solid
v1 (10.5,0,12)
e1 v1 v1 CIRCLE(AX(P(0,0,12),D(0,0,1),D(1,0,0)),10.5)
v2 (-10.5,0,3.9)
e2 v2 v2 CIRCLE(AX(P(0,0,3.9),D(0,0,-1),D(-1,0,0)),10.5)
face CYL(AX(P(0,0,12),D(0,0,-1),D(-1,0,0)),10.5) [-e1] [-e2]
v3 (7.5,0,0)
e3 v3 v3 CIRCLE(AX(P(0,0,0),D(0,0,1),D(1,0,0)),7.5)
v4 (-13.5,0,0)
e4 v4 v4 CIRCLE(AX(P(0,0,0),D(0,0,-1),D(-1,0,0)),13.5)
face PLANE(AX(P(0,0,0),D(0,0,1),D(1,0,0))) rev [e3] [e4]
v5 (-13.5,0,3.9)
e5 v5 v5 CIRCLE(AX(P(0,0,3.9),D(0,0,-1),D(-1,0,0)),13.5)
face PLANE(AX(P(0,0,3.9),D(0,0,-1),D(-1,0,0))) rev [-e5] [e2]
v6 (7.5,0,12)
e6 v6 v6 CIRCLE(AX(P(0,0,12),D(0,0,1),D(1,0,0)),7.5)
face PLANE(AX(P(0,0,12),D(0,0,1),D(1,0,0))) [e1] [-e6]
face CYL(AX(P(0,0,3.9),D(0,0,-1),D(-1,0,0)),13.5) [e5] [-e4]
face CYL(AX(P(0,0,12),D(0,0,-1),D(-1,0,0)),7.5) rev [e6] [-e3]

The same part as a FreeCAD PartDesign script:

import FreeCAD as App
import Part
import Sketcher
from FreeCAD import Vector

doc = App.newDocument("Part")
body = doc.addObject("PartDesign::Body", "Body")

# Sketch on XY plane
sketch1 = body.newObject("Sketcher::SketchObject", "Sketch")
sketch1.AttachmentSupport = (doc.getObject("XY_Plane"), [""])
sketch1.MapMode = "FlatFace"
sketch1.addGeometry([
    Part.Circle(Vector(0, 0, 0), Vector(0, 0, 1), 10),
    Part.Circle(Vector(0, 0, 0), Vector(0, 0, 1), 8),
], False)
sketch1.addConstraint([
    Sketcher.Constraint("Coincident", 0, 3, -1, 1),
    Sketcher.Constraint("Coincident", 1, 3, -1, 1),
    Sketcher.Constraint("Diameter", 0, 21.0),
    Sketcher.Constraint("Diameter", 1, 15.0),
])
pad1 = body.newObject("PartDesign::Pad", "Pad")
pad1.Profile = sketch1
pad1.Length = 12

# Sketch on XY plane
sketch2 = body.newObject("Sketcher::SketchObject", "Sketch001")
sketch2.AttachmentSupport = (doc.getObject("XY_Plane"), [""])
sketch2.MapMode = "FlatFace"
sketch2.addGeometry([
    Part.Circle(Vector(0, 0, 0), Vector(0, 0, 1), 14),
    Part.Circle(Vector(0, 0, 0), Vector(0, 0, 1), 10),
], False)
sketch2.addConstraint([
    Sketcher.Constraint("Coincident", 0, 3, -1, 1),
    Sketcher.Constraint("Coincident", 1, 3, -1, 1),
    Sketcher.Constraint("Diameter", 0, 27.0),
    Sketcher.Constraint("Diameter", 1, 21.0),
])
pad2 = body.newObject("PartDesign::Pad", "Pad001")
pad2.Profile = sketch2
pad2.Length = 3.9

doc.recompute()
